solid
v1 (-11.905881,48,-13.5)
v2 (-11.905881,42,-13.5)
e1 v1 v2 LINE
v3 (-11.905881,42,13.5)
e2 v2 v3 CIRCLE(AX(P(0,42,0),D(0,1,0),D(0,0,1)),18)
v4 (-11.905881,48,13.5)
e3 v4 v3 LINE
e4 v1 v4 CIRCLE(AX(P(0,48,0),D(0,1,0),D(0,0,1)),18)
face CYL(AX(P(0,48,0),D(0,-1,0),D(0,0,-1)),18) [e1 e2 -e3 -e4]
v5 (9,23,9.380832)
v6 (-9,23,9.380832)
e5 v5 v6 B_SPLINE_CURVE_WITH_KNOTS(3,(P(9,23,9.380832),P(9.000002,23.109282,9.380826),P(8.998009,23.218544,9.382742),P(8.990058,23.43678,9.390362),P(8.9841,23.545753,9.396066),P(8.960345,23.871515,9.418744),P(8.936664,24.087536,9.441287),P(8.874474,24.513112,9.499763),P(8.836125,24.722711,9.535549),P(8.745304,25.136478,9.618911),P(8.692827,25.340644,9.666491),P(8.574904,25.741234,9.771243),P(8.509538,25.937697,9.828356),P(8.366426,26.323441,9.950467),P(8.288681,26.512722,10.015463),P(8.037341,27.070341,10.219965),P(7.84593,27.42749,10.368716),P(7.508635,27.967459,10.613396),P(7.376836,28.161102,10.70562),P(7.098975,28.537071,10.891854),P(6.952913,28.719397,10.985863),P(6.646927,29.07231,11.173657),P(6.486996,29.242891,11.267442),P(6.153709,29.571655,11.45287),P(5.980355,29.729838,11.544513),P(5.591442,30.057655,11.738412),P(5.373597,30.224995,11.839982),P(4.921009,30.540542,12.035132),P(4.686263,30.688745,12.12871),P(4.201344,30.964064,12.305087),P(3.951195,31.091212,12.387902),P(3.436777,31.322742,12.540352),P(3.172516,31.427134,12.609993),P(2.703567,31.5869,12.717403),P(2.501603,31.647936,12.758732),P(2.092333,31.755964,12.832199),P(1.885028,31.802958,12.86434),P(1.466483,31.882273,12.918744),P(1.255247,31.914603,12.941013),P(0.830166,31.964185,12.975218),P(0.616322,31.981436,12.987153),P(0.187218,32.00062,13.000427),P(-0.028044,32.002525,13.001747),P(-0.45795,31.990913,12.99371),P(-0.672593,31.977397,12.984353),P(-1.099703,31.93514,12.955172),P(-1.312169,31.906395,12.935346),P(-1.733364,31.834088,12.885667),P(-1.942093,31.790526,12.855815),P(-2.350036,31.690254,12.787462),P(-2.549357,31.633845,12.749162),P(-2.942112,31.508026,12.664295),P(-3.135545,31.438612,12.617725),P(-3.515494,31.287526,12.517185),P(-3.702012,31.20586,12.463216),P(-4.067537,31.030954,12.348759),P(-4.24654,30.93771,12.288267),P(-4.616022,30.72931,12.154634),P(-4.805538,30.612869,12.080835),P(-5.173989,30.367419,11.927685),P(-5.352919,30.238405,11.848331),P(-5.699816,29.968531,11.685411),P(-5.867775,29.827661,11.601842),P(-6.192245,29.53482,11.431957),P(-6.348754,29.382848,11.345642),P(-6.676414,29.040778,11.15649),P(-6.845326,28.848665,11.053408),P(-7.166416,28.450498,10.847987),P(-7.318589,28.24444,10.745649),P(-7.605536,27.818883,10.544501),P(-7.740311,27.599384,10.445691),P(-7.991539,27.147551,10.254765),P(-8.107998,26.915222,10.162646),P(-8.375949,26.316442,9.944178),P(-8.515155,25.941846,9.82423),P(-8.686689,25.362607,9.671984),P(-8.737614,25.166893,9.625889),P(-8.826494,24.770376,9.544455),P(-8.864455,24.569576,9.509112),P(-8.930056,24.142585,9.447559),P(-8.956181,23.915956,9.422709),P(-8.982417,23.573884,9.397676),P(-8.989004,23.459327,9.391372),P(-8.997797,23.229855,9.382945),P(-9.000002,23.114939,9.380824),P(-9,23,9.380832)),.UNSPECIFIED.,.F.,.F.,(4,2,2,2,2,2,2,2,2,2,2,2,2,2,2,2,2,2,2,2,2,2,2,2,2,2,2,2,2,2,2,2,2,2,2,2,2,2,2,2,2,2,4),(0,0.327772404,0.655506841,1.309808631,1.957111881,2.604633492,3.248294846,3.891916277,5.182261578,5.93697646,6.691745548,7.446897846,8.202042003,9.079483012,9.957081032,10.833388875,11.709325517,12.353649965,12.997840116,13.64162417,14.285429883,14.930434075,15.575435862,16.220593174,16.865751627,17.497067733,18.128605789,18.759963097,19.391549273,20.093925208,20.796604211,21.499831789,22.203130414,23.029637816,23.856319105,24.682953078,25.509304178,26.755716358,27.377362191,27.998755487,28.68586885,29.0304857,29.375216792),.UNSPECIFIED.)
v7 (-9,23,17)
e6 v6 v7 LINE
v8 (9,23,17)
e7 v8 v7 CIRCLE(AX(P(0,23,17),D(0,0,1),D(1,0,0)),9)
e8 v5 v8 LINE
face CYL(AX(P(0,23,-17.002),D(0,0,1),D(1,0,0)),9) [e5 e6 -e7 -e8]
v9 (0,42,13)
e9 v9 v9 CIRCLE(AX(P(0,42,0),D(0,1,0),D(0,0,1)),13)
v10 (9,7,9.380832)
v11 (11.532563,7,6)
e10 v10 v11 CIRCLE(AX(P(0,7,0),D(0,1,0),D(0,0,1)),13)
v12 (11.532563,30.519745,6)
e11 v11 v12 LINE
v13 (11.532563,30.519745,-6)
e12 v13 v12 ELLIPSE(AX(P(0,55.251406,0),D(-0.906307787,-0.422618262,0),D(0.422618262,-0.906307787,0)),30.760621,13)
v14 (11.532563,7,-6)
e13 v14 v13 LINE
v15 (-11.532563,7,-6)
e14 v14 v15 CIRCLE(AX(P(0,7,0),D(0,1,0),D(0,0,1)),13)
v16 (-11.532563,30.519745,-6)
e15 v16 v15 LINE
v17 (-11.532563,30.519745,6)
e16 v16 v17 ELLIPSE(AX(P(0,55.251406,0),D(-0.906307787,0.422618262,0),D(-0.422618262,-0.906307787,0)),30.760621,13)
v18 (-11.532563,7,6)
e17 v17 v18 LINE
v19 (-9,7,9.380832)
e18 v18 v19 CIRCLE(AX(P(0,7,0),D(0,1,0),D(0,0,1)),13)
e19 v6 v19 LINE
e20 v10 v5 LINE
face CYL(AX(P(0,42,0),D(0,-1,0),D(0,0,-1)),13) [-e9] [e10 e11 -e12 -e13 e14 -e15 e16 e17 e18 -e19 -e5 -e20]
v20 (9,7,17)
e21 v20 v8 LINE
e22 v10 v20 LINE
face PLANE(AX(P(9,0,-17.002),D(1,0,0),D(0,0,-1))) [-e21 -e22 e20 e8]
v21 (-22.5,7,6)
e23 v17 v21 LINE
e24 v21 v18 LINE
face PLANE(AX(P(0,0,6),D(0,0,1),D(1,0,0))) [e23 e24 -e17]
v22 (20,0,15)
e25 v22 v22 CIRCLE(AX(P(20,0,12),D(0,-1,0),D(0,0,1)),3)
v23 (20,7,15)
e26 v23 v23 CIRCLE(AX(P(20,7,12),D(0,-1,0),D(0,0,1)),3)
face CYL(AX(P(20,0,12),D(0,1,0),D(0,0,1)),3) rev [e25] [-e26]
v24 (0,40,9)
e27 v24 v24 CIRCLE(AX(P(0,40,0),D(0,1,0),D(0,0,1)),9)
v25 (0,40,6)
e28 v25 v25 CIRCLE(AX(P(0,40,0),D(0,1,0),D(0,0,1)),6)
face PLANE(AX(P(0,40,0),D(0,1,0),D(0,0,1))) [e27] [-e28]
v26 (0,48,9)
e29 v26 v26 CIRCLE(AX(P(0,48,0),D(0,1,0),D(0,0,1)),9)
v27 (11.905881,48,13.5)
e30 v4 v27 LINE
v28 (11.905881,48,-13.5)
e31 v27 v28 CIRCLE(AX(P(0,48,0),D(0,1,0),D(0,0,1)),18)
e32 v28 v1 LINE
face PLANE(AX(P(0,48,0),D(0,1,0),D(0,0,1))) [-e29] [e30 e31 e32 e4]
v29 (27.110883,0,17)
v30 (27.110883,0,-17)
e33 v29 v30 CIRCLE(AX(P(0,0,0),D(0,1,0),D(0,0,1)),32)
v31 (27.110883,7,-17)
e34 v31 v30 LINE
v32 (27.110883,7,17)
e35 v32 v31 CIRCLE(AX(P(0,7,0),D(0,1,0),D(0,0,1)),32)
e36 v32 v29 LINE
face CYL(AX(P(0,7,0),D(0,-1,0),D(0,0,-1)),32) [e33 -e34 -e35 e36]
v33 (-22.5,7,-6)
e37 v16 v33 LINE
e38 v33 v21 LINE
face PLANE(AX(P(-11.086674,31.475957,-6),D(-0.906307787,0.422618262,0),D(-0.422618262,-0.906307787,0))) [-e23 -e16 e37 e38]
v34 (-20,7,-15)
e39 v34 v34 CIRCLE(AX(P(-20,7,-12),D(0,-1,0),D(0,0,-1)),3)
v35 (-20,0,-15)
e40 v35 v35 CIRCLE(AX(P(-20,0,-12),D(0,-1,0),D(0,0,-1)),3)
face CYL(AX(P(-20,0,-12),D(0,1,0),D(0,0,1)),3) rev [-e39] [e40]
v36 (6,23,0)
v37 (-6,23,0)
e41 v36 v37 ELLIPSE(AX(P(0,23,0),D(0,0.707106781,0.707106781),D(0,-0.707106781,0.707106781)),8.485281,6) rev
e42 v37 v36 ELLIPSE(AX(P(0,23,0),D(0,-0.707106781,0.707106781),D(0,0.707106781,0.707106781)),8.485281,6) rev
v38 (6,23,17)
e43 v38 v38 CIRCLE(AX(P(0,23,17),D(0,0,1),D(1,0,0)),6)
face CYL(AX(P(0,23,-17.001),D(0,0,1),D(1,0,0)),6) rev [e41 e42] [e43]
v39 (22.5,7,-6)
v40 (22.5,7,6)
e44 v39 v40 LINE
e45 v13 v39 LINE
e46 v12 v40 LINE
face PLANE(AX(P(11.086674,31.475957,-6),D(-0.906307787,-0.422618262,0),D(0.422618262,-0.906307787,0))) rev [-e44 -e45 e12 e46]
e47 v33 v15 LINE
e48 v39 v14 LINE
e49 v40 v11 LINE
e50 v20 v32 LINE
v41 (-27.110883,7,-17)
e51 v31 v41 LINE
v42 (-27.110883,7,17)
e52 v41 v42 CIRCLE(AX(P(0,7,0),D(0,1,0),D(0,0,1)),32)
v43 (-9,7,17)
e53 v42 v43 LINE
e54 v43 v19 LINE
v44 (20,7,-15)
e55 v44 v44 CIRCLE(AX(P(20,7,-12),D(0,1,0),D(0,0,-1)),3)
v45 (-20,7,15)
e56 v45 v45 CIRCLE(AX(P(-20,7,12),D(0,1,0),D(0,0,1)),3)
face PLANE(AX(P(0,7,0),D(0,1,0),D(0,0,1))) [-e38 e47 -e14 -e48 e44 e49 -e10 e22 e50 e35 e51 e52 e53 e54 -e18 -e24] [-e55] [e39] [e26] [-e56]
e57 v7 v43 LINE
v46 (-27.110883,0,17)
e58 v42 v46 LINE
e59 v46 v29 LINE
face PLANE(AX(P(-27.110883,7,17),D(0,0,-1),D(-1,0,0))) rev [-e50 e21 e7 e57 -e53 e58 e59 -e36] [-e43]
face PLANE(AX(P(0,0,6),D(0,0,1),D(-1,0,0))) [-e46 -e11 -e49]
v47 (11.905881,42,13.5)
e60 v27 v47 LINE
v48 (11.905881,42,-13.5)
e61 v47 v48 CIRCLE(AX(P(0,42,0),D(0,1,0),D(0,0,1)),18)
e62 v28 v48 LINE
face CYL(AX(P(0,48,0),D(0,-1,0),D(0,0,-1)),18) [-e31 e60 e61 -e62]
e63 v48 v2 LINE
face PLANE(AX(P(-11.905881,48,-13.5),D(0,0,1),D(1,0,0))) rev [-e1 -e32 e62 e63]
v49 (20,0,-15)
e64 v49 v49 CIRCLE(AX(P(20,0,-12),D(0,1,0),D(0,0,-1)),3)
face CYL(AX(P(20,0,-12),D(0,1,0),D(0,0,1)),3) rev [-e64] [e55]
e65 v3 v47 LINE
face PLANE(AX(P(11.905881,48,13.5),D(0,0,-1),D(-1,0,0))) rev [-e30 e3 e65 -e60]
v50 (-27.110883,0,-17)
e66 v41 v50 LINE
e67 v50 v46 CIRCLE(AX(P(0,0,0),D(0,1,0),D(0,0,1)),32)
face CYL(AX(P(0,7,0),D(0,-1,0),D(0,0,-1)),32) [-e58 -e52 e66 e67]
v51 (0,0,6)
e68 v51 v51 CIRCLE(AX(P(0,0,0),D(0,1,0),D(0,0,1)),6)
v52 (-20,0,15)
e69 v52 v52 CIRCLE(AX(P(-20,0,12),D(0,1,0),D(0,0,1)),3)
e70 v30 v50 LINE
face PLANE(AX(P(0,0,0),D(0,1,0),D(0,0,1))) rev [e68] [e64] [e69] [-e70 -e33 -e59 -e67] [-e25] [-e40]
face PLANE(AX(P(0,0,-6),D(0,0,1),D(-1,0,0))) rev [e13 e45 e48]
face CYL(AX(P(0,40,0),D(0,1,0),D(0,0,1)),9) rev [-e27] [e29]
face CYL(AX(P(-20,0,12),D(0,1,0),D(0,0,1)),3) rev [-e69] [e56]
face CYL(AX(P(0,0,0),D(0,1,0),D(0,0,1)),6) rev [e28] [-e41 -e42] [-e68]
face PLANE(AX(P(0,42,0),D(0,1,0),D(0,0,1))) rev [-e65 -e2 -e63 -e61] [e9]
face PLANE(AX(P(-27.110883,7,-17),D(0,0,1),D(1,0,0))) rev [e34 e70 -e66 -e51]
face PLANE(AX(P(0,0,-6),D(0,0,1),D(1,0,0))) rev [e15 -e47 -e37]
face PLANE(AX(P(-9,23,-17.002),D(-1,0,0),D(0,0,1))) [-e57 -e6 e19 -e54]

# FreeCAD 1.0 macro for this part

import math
import FreeCAD as App
import Part
import Sketcher
from FreeCAD import Vector
Q = App.Units.Quantity

doc = App.newDocument("Part")
body = doc.addObject("PartDesign::Body", "Body")

# Sketch on XZ plane
sketch1 = body.newObject("Sketcher::SketchObject", "Sketch")
sketch1.AttachmentSupport = (doc.getObject("XZ_Plane"), [""])
sketch1.MapMode = "FlatFace"
sketch1.addGeometry(Part.LineSegment(Vector(27.110883, -17, 0), Vector(-27.110883, -17, 0)), False)
sketch1.addGeometry(Part.ArcOfCircle(Part.Circle(Vector(0, 0, 0), Vector(0, 0, 1), 32), math.radians(147.910049), math.radians(212.089951)), False)
sketch1.addGeometry(Part.LineSegment(Vector(-27.110883, 17, 0), Vector(27.110883, 17, 0)), False)
sketch1.addGeometry(Part.ArcOfCircle(Part.Circle(Vector(0, 0, 0), Vector(0, 0, 1), 32), math.radians(-32.089951), math.radians(32.089951)), False)
sketch1.addConstraint(Sketcher.Constraint("Coincident", 0, 2, 1, 2))
sketch1.addConstraint(Sketcher.Constraint("Coincident", 1, 1, 2, 1))
sketch1.addConstraint(Sketcher.Constraint("Coincident", 2, 2, 3, 2))
sketch1.addConstraint(Sketcher.Constraint("Coincident", 3, 1, 0, 1))
sketch1.addConstraint(Sketcher.Constraint("Horizontal", 0))
sketch1.addConstraint(Sketcher.Constraint("Horizontal", 2))
sketch1.addConstraint(Sketcher.Constraint("Coincident", 1, 3, -1, 1))
sketch1.addConstraint(Sketcher.Constraint("Coincident", 3, 3, -1, 1))
sketch1.addConstraint(Sketcher.Constraint("Equal", 1, 3))
sketch1.addConstraint(Sketcher.Constraint("Vertical", 0, 2, 1, 1))
sketch1.addConstraint(Sketcher.Constraint("Radius", 1, 32.0))
sketch1.addConstraint(Sketcher.Constraint("DistanceY", 0, 2, -1, 1, 17.0))
pad1 = body.newObject("PartDesign::Pad", "Pad")
pad1.Profile = sketch1
pad1.Length = 7
pad1.Reversed = True

# Sketch on XZ plane
sketch2 = body.newObject("Sketcher::SketchObject", "Sketch001")
sketch2.AttachmentSupport = (doc.getObject("XZ_Plane"), [""])
sketch2.MapMode = "FlatFace"
sketch2.AttachmentOffset = App.Placement(Vector(0, 0, -7), App.Rotation())
sketch2.addGeometry(Part.Circle(Vector(-20, 12, 0), Vector(0, 0, 1), 3), False)
sketch2.addConstraint(Sketcher.Constraint("Diameter", 0, 6.0))
sketch2.addConstraint(Sketcher.Constraint("DistanceX", 0, 3, -1, 1, 20.0))
sketch2.addConstraint(Sketcher.Constraint("DistanceY", -1, 1, 0, 3, 12.0))
pocket1 = body.newObject("PartDesign::Pocket", "Pocket")
pocket1.Profile = sketch2
pocket1.Type = "ThroughAll"
pocket1.Reversed = True
doc.recompute()

mirrored = body.newObject("PartDesign::Mirrored", "Mirrored")
mirrored.Originals = [pocket1]
mirrored.MirrorPlane = (doc.getObject("YZ_Plane"), [""])
body.Tip = mirrored
doc.recompute()

mirrored2 = body.newObject("PartDesign::Mirrored", "Mirrored001")
mirrored2.Originals = [pocket1]
mirrored2.MirrorPlane = (doc.getObject("XY_Plane"), [""])
body.Tip = mirrored2

# Sketch on XZ plane
sketch3 = body.newObject("Sketcher::SketchObject", "Sketch002")
sketch3.AttachmentSupport = (doc.getObject("XZ_Plane"), [""])
sketch3.MapMode = "FlatFace"
sketch3.AttachmentOffset = App.Placement(Vector(0, 0, -7), App.Rotation())
sketch3.addGeometry(Part.Circle(Vector(20, -12, 0), Vector(0, 0, 1), 3), False)
sketch3.addConstraint(Sketcher.Constraint("Diameter", 0, 6.0))
sketch3.addConstraint(Sketcher.Constraint("DistanceX", -1, 1, 0, 3, 20.0))
sketch3.addConstraint(Sketcher.Constraint("DistanceY", 0, 3, -1, 1, 12.0))
pocket2 = body.newObject("PartDesign::Pocket", "Pocket001")
pocket2.Profile = sketch3
pocket2.Type = "ThroughAll"
pocket2.Reversed = True

# Sketch on XZ plane
sketch4 = body.newObject("Sketcher::SketchObject", "Sketch003")
sketch4.AttachmentSupport = (doc.getObject("XZ_Plane"), [""])
sketch4.MapMode = "FlatFace"
sketch4.AttachmentOffset = App.Placement(Vector(0, 0, -7), App.Rotation())
sketch4.addGeometry(Part.Circle(Vector(0, 0, 0), Vector(0, 0, 1), 13), False)
sketch4.addConstraint(Sketcher.Constraint("Coincident", 0, 3, -1, 1))
sketch4.addConstraint(Sketcher.Constraint("Diameter", 0, 26.0))
pad2 = body.newObject("PartDesign::Pad", "Pad001")
pad2.Profile = sketch4
pad2.Length = 35
pad2.Reversed = True

# Sketch on XZ plane
sketch5 = body.newObject("Sketcher::SketchObject", "Sketch004")
sketch5.AttachmentSupport = (doc.getObject("XZ_Plane"), [""])
sketch5.MapMode = "FlatFace"
sketch5.AttachmentOffset = App.Placement(Vector(0, 0, -42), App.Rotation())
sketch5.addGeometry(Part.LineSegment(Vector(11.905881, -13.5, 0), Vector(-11.905881, -13.5, 0)), False)
sketch5.addGeometry(Part.ArcOfCircle(Part.Circle(Vector(0, 0, 0), Vector(0, 0, 1), 18), math.radians(131.409622), math.radians(228.590378)), False)
sketch5.addGeometry(Part.LineSegment(Vector(-11.905881, 13.5, 0), Vector(11.905881, 13.5, 0)), False)
sketch5.addGeometry(Part.ArcOfCircle(Part.Circle(Vector(0, 0, 0), Vector(0, 0, 1), 18), math.radians(-48.590378), math.radians(48.590378)), False)
sketch5.addConstraint(Sketcher.Constraint("Coincident", 0, 2, 1, 2))
sketch5.addConstraint(Sketcher.Constraint("Coincident", 1, 1, 2, 1))
sketch5.addConstraint(Sketcher.Constraint("Coincident", 2, 2, 3, 2))
sketch5.addConstraint(Sketcher.Constraint("Coincident", 3, 1, 0, 1))
sketch5.addConstraint(Sketcher.Constraint("Horizontal", 0))
sketch5.addConstraint(Sketcher.Constraint("Horizontal", 2))
sketch5.addConstraint(Sketcher.Constraint("Coincident", 1, 3, -1, 1))
sketch5.addConstraint(Sketcher.Constraint("Coincident", 3, 3, -1, 1))
sketch5.addConstraint(Sketcher.Constraint("Equal", 1, 3))
sketch5.addConstraint(Sketcher.Constraint("Vertical", 0, 2, 1, 1))
sketch5.addConstraint(Sketcher.Constraint("Radius", 1, 18.0))
sketch5.addConstraint(Sketcher.Constraint("DistanceY", 0, 2, 1, 1, 27.0))
pad3 = body.newObject("PartDesign::Pad", "Pad002")
pad3.Profile = sketch5
pad3.Length = 6
pad3.Reversed = True

# Sketch on XZ plane
sketch6 = body.newObject("Sketcher::SketchObject", "Sketch005")
sketch6.AttachmentSupport = (doc.getObject("XZ_Plane"), [""])
sketch6.MapMode = "FlatFace"
sketch6.AttachmentOffset = App.Placement(Vector(0, 0, -48), App.Rotation())
sketch6.addGeometry(Part.Circle(Vector(0, 0, 0), Vector(0, 0, 1), 9), False)
sketch6.addConstraint(Sketcher.Constraint("Coincident", 0, 3, -1, 1))
sketch6.addConstraint(Sketcher.Constraint("Diameter", 0, 18.0))
pocket3 = body.newObject("PartDesign::Pocket", "Pocket002")
pocket3.Profile = sketch6
pocket3.Length = 8
pocket3.Reversed = True

# Sketch on XZ plane
sketch7 = body.newObject("Sketcher::SketchObject", "Sketch006")
sketch7.AttachmentSupport = (doc.getObject("XZ_Plane"), [""])
sketch7.MapMode = "FlatFace"
sketch7.AttachmentOffset = App.Placement(Vector(0, 0, -40), App.Rotation())
sketch7.addGeometry(Part.Circle(Vector(0, 0, 0), Vector(0, 0, 1), 6), False)
sketch7.addConstraint(Sketcher.Constraint("Coincident", 0, 3, -1, 1))
sketch7.addConstraint(Sketcher.Constraint("Diameter", 0, 12.0))
pocket4 = body.newObject("PartDesign::Pocket", "Pocket003")
pocket4.Profile = sketch7
pocket4.Type = "ThroughAll"
pocket4.Reversed = True

# Sketch on XY plane
sketch8 = body.newObject("Sketcher::SketchObject", "Sketch007")
sketch8.AttachmentSupport = (doc.getObject("XY_Plane"), [""])
sketch8.MapMode = "FlatFace"
sketch8.AttachmentOffset = App.Placement(Vector(0, 0, 17), App.Rotation())
sketch8.addGeometry(Part.LineSegment(Vector(-9, 23, 0), Vector(-9, 0, 0)), False)
sketch8.addGeometry(Part.LineSegment(Vector(-9, 0, 0), Vector(9, 0, 0)), False)
sketch8.addGeometry(Part.LineSegment(Vector(9, 0, 0), Vector(9, 23, 0)), False)
sketch8.addGeometry(Part.ArcOfCircle(Part.Circle(Vector(0, 23, 0), Vector(0, 0, 1), 9), math.radians(0), math.radians(180)), False)
sketch8.addConstraint(Sketcher.Constraint("Coincident", 0, 2, 1, 1))
sketch8.addConstraint(Sketcher.Constraint("Coincident", 1, 2, 2, 1))
sketch8.addConstraint(Sketcher.Constraint("Tangent", 2, 2, 3, 1))
sketch8.addConstraint(Sketcher.Constraint("Tangent", 3, 2, 0, 1))
sketch8.addConstraint(Sketcher.Constraint("Vertical", 0))
sketch8.addConstraint(Sketcher.Constraint("Horizontal", 1))
sketch8.addConstraint(Sketcher.Constraint("Vertical", 2))
sketch8.addConstraint(Sketcher.Constraint("Symmetric", 0, 2, 1, 2, -1, 1))
sketch8.addConstraint(Sketcher.Constraint("Radius", 3, 9.0))
sketch8.addConstraint(Sketcher.Constraint("DistanceY", 0, 2, 0, 1, 23.0))
pad4 = body.newObject("PartDesign::Pad", "Pad003")
pad4.Profile = sketch8
pad4.Type = "UpToFirst"
pad4.Reversed = True

# Sketch on XY plane
sketch9 = body.newObject("Sketcher::SketchObject", "Sketch008")
sketch9.AttachmentSupport = (doc.getObject("XY_Plane"), [""])
sketch9.MapMode = "FlatFace"
sketch9.AttachmentOffset = App.Placement(Vector(0, 0, 17), App.Rotation())
sketch9.addGeometry(Part.Circle(Vector(0, 23, 0), Vector(0, 0, 1), 6), False)
sketch9.addConstraint(Sketcher.Constraint("PointOnObject", 0, 3, -2))
sketch9.addConstraint(Sketcher.Constraint("Diameter", 0, 12.0))
sketch9.addConstraint(Sketcher.Constraint("DistanceY", -1, 1, 0, 3, 23.0))
pocket5 = body.newObject("PartDesign::Pocket", "Pocket004")
pocket5.Profile = sketch9
pocket5.Type = "UpToFirst"

# Sketch on XY plane
sketch10 = body.newObject("Sketcher::SketchObject", "Sketch009")
sketch10.AttachmentSupport = (doc.getObject("XY_Plane"), [""])
sketch10.MapMode = "FlatFace"
sketch10.addGeometry(Part.LineSegment(Vector(-22.5, 7, 0), Vector(-11.086674, 7, 0)), False)
sketch10.addGeometry(Part.LineSegment(Vector(-11.086674, 7, 0), Vector(-11.086674, 31.475957, 0)), False)
sketch10.addGeometry(Part.LineSegment(Vector(-11.086674, 31.475957, 0), Vector(-22.5, 7, 0)), False)
sketch10.addConstraint(Sketcher.Constraint("Coincident", 0, 2, 1, 1))
sketch10.addConstraint(Sketcher.Constraint("Coincident", 1, 2, 2, 1))
sketch10.addConstraint(Sketcher.Constraint("Coincident", 2, 2, 0, 1))
sketch10.addConstraint(Sketcher.Constraint("Horizontal", 0))
sketch10.addConstraint(Sketcher.Constraint("Vertical", 1))
sketch10.addConstraint(Sketcher.Constraint("Angle", 2, Q("-115 deg")))
sketch10.addConstraint(Sketcher.Constraint("DistanceY", -1, 1, 0, 2, 7.0))
sketch10.addConstraint(Sketcher.Constraint("DistanceX", 2, 2, -1, 1, 22.5))
sketch10.addConstraint(Sketcher.Constraint("Distance", 2, 27.006231))
pad5 = body.newObject("PartDesign::Pad", "Pad004")
pad5.Profile = sketch10
pad5.Length = 12
pad5.Midplane = True
doc.recompute()

mirrored3 = body.newObject("PartDesign::Mirrored", "Mirrored002")
mirrored3.Originals = [pad5]
mirrored3.MirrorPlane = (doc.getObject("YZ_Plane"), [""])
body.Tip = mirrored3

doc.recompute()
